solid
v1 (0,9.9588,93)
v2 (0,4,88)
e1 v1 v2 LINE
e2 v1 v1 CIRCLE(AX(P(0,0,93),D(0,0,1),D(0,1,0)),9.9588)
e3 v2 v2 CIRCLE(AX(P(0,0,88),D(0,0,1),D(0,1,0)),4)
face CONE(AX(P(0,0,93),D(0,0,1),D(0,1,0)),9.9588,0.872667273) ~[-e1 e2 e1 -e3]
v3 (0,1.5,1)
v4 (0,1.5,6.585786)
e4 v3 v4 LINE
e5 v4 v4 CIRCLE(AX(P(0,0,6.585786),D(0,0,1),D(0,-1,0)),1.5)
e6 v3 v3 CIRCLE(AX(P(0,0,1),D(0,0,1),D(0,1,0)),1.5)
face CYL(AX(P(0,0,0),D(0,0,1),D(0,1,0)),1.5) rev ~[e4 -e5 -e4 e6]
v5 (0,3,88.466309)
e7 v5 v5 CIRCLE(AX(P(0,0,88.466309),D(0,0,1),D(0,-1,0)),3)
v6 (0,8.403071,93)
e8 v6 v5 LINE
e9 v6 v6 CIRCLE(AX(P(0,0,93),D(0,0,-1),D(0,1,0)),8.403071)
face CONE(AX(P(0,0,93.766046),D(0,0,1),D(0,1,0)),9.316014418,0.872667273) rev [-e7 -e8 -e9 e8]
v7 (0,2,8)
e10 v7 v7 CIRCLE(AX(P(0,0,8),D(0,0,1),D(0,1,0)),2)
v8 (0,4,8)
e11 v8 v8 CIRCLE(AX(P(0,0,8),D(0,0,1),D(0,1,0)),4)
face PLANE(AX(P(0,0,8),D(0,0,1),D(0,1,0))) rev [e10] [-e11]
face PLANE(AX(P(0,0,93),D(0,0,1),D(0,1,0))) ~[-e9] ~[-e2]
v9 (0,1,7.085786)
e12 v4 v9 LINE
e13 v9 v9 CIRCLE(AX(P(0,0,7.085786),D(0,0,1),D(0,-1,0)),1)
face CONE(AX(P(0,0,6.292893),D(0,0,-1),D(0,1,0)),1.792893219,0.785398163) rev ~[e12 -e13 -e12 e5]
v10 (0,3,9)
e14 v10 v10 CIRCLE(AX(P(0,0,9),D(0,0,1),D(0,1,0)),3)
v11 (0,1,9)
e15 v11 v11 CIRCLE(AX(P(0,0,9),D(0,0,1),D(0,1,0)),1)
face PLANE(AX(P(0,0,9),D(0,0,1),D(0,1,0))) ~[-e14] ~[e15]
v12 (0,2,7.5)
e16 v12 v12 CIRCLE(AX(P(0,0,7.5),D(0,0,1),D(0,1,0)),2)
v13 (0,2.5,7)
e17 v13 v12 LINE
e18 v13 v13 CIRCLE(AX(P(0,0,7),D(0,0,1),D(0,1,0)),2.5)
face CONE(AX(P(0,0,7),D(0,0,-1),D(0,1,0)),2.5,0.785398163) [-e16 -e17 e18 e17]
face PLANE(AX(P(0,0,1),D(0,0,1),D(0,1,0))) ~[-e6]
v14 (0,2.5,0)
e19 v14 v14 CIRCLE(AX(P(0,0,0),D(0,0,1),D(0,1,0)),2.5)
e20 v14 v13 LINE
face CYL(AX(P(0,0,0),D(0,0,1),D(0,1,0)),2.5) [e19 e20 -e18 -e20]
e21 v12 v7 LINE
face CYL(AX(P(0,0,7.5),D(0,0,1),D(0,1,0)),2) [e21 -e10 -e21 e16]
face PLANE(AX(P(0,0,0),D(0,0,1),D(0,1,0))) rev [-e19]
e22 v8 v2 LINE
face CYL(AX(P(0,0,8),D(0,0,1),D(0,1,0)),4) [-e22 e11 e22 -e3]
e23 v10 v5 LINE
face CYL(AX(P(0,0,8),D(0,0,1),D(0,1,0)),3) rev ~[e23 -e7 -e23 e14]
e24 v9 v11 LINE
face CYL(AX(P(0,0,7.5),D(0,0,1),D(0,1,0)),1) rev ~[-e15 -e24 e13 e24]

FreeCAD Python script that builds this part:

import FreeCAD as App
import Part
import Sketcher

V = App.Vector
Q = App.Units.Quantity


def faces_at(feature, points):
    """Names of the faces that lie closest to the given points."""
    faces = feature.Shape.Faces
    near = lambda p: min(range(len(faces)), key=lambda i: faces[i].distToShape(Part.Vertex(*p))[0])
    return sorted({f"Face{near(p) + 1}" for p in points})

doc = App.newDocument("Part")
body = doc.addObject("PartDesign::Body", "Body")

sketch1 = body.newObject("Sketcher::SketchObject", "Sketch")
sketch1.AttachmentSupport = (doc.getObject("YZ_Plane"), [""])
sketch1.MapMode = "FlatFace"
sketch1.addGeometry([
    Part.LineSegment(V(0, 93, 0), V(0, 0, 0)),
    Part.LineSegment(V(0, 0, 0), V(2.5, 0, 0)),
    Part.LineSegment(V(2.5, 0, 0), V(2.5, 7, 0)),
    Part.LineSegment(V(2.5, 7, 0), V(2, 7.5, 0)),
    Part.LineSegment(V(2, 7.5, 0), V(2, 8, 0)),
    Part.LineSegment(V(2, 8, 0), V(4, 8, 0)),
    Part.LineSegment(V(4, 8, 0), V(4, 88, 0)),
    Part.LineSegment(V(4, 88, 0), V(10, 93, 0)),
    Part.LineSegment(V(10, 93, 0), V(0, 93, 0)),
], False)
sketch1.addConstraint([
    Sketcher.Constraint("Coincident", 0, 2, 1, 1),
    Sketcher.Constraint("Coincident", 1, 2, 2, 1),
    Sketcher.Constraint("Coincident", 2, 2, 3, 1),
    Sketcher.Constraint("Coincident", 3, 2, 4, 1),
    Sketcher.Constraint("Coincident", 4, 2, 5, 1),
    Sketcher.Constraint("Coincident", 5, 2, 6, 1),
    Sketcher.Constraint("Coincident", 6, 2, 7, 1),
    Sketcher.Constraint("Coincident", 7, 2, 8, 1),
    Sketcher.Constraint("Coincident", 8, 2, 0, 1),
    Sketcher.Constraint("Vertical", 0),
    Sketcher.Constraint("Horizontal", 1),
    Sketcher.Constraint("Vertical", 2),
    Sketcher.Constraint("Vertical", 4),
    Sketcher.Constraint("Horizontal", 5),
    Sketcher.Constraint("Vertical", 6),
    Sketcher.Constraint("Horizontal", 8),
    Sketcher.Constraint("Coincident", 0, 2, -1, 1),
    Sketcher.Constraint("DistanceX", 5, 1, 5, 2, 2.0),
    Sketcher.Constraint("DistanceY", 2, 1, 2, 2, 7.0),
    Sketcher.Constraint("Angle", 7, Q("39.9998 deg")),
    Sketcher.Constraint("DistanceX", 1, 1, 1, 2, 2.5),
    Sketcher.Constraint("DistanceY", 4, 1, 4, 2, 0.5),
    Sketcher.Constraint("DistanceX", -1, 1, 3, 2, 2.0),
    Sketcher.Constraint("DistanceY", 6, 2, 7, 2, 5.0),
    Sketcher.Constraint("DistanceY", 5, 2, 7, 2, 85.0),
    Sketcher.Constraint("DistanceY", 2, 2, 3, 2, 0.5),
])
revolution = body.newObject("PartDesign::Revolution", "Revolution")
revolution.Profile = sketch1
revolution.ReferenceAxis = (sketch1, ["V_Axis"])
revolution.Angle = 360
doc.recompute()

thickness = body.newObject("PartDesign::Thickness", "Thickness")
thickness.Base = (revolution, faces_at(revolution, [(-0.136, 2.201, 93)]))
thickness.Value = 1
thickness.Reversed = True
thickness.Join = "Intersection"

doc.recompute()
